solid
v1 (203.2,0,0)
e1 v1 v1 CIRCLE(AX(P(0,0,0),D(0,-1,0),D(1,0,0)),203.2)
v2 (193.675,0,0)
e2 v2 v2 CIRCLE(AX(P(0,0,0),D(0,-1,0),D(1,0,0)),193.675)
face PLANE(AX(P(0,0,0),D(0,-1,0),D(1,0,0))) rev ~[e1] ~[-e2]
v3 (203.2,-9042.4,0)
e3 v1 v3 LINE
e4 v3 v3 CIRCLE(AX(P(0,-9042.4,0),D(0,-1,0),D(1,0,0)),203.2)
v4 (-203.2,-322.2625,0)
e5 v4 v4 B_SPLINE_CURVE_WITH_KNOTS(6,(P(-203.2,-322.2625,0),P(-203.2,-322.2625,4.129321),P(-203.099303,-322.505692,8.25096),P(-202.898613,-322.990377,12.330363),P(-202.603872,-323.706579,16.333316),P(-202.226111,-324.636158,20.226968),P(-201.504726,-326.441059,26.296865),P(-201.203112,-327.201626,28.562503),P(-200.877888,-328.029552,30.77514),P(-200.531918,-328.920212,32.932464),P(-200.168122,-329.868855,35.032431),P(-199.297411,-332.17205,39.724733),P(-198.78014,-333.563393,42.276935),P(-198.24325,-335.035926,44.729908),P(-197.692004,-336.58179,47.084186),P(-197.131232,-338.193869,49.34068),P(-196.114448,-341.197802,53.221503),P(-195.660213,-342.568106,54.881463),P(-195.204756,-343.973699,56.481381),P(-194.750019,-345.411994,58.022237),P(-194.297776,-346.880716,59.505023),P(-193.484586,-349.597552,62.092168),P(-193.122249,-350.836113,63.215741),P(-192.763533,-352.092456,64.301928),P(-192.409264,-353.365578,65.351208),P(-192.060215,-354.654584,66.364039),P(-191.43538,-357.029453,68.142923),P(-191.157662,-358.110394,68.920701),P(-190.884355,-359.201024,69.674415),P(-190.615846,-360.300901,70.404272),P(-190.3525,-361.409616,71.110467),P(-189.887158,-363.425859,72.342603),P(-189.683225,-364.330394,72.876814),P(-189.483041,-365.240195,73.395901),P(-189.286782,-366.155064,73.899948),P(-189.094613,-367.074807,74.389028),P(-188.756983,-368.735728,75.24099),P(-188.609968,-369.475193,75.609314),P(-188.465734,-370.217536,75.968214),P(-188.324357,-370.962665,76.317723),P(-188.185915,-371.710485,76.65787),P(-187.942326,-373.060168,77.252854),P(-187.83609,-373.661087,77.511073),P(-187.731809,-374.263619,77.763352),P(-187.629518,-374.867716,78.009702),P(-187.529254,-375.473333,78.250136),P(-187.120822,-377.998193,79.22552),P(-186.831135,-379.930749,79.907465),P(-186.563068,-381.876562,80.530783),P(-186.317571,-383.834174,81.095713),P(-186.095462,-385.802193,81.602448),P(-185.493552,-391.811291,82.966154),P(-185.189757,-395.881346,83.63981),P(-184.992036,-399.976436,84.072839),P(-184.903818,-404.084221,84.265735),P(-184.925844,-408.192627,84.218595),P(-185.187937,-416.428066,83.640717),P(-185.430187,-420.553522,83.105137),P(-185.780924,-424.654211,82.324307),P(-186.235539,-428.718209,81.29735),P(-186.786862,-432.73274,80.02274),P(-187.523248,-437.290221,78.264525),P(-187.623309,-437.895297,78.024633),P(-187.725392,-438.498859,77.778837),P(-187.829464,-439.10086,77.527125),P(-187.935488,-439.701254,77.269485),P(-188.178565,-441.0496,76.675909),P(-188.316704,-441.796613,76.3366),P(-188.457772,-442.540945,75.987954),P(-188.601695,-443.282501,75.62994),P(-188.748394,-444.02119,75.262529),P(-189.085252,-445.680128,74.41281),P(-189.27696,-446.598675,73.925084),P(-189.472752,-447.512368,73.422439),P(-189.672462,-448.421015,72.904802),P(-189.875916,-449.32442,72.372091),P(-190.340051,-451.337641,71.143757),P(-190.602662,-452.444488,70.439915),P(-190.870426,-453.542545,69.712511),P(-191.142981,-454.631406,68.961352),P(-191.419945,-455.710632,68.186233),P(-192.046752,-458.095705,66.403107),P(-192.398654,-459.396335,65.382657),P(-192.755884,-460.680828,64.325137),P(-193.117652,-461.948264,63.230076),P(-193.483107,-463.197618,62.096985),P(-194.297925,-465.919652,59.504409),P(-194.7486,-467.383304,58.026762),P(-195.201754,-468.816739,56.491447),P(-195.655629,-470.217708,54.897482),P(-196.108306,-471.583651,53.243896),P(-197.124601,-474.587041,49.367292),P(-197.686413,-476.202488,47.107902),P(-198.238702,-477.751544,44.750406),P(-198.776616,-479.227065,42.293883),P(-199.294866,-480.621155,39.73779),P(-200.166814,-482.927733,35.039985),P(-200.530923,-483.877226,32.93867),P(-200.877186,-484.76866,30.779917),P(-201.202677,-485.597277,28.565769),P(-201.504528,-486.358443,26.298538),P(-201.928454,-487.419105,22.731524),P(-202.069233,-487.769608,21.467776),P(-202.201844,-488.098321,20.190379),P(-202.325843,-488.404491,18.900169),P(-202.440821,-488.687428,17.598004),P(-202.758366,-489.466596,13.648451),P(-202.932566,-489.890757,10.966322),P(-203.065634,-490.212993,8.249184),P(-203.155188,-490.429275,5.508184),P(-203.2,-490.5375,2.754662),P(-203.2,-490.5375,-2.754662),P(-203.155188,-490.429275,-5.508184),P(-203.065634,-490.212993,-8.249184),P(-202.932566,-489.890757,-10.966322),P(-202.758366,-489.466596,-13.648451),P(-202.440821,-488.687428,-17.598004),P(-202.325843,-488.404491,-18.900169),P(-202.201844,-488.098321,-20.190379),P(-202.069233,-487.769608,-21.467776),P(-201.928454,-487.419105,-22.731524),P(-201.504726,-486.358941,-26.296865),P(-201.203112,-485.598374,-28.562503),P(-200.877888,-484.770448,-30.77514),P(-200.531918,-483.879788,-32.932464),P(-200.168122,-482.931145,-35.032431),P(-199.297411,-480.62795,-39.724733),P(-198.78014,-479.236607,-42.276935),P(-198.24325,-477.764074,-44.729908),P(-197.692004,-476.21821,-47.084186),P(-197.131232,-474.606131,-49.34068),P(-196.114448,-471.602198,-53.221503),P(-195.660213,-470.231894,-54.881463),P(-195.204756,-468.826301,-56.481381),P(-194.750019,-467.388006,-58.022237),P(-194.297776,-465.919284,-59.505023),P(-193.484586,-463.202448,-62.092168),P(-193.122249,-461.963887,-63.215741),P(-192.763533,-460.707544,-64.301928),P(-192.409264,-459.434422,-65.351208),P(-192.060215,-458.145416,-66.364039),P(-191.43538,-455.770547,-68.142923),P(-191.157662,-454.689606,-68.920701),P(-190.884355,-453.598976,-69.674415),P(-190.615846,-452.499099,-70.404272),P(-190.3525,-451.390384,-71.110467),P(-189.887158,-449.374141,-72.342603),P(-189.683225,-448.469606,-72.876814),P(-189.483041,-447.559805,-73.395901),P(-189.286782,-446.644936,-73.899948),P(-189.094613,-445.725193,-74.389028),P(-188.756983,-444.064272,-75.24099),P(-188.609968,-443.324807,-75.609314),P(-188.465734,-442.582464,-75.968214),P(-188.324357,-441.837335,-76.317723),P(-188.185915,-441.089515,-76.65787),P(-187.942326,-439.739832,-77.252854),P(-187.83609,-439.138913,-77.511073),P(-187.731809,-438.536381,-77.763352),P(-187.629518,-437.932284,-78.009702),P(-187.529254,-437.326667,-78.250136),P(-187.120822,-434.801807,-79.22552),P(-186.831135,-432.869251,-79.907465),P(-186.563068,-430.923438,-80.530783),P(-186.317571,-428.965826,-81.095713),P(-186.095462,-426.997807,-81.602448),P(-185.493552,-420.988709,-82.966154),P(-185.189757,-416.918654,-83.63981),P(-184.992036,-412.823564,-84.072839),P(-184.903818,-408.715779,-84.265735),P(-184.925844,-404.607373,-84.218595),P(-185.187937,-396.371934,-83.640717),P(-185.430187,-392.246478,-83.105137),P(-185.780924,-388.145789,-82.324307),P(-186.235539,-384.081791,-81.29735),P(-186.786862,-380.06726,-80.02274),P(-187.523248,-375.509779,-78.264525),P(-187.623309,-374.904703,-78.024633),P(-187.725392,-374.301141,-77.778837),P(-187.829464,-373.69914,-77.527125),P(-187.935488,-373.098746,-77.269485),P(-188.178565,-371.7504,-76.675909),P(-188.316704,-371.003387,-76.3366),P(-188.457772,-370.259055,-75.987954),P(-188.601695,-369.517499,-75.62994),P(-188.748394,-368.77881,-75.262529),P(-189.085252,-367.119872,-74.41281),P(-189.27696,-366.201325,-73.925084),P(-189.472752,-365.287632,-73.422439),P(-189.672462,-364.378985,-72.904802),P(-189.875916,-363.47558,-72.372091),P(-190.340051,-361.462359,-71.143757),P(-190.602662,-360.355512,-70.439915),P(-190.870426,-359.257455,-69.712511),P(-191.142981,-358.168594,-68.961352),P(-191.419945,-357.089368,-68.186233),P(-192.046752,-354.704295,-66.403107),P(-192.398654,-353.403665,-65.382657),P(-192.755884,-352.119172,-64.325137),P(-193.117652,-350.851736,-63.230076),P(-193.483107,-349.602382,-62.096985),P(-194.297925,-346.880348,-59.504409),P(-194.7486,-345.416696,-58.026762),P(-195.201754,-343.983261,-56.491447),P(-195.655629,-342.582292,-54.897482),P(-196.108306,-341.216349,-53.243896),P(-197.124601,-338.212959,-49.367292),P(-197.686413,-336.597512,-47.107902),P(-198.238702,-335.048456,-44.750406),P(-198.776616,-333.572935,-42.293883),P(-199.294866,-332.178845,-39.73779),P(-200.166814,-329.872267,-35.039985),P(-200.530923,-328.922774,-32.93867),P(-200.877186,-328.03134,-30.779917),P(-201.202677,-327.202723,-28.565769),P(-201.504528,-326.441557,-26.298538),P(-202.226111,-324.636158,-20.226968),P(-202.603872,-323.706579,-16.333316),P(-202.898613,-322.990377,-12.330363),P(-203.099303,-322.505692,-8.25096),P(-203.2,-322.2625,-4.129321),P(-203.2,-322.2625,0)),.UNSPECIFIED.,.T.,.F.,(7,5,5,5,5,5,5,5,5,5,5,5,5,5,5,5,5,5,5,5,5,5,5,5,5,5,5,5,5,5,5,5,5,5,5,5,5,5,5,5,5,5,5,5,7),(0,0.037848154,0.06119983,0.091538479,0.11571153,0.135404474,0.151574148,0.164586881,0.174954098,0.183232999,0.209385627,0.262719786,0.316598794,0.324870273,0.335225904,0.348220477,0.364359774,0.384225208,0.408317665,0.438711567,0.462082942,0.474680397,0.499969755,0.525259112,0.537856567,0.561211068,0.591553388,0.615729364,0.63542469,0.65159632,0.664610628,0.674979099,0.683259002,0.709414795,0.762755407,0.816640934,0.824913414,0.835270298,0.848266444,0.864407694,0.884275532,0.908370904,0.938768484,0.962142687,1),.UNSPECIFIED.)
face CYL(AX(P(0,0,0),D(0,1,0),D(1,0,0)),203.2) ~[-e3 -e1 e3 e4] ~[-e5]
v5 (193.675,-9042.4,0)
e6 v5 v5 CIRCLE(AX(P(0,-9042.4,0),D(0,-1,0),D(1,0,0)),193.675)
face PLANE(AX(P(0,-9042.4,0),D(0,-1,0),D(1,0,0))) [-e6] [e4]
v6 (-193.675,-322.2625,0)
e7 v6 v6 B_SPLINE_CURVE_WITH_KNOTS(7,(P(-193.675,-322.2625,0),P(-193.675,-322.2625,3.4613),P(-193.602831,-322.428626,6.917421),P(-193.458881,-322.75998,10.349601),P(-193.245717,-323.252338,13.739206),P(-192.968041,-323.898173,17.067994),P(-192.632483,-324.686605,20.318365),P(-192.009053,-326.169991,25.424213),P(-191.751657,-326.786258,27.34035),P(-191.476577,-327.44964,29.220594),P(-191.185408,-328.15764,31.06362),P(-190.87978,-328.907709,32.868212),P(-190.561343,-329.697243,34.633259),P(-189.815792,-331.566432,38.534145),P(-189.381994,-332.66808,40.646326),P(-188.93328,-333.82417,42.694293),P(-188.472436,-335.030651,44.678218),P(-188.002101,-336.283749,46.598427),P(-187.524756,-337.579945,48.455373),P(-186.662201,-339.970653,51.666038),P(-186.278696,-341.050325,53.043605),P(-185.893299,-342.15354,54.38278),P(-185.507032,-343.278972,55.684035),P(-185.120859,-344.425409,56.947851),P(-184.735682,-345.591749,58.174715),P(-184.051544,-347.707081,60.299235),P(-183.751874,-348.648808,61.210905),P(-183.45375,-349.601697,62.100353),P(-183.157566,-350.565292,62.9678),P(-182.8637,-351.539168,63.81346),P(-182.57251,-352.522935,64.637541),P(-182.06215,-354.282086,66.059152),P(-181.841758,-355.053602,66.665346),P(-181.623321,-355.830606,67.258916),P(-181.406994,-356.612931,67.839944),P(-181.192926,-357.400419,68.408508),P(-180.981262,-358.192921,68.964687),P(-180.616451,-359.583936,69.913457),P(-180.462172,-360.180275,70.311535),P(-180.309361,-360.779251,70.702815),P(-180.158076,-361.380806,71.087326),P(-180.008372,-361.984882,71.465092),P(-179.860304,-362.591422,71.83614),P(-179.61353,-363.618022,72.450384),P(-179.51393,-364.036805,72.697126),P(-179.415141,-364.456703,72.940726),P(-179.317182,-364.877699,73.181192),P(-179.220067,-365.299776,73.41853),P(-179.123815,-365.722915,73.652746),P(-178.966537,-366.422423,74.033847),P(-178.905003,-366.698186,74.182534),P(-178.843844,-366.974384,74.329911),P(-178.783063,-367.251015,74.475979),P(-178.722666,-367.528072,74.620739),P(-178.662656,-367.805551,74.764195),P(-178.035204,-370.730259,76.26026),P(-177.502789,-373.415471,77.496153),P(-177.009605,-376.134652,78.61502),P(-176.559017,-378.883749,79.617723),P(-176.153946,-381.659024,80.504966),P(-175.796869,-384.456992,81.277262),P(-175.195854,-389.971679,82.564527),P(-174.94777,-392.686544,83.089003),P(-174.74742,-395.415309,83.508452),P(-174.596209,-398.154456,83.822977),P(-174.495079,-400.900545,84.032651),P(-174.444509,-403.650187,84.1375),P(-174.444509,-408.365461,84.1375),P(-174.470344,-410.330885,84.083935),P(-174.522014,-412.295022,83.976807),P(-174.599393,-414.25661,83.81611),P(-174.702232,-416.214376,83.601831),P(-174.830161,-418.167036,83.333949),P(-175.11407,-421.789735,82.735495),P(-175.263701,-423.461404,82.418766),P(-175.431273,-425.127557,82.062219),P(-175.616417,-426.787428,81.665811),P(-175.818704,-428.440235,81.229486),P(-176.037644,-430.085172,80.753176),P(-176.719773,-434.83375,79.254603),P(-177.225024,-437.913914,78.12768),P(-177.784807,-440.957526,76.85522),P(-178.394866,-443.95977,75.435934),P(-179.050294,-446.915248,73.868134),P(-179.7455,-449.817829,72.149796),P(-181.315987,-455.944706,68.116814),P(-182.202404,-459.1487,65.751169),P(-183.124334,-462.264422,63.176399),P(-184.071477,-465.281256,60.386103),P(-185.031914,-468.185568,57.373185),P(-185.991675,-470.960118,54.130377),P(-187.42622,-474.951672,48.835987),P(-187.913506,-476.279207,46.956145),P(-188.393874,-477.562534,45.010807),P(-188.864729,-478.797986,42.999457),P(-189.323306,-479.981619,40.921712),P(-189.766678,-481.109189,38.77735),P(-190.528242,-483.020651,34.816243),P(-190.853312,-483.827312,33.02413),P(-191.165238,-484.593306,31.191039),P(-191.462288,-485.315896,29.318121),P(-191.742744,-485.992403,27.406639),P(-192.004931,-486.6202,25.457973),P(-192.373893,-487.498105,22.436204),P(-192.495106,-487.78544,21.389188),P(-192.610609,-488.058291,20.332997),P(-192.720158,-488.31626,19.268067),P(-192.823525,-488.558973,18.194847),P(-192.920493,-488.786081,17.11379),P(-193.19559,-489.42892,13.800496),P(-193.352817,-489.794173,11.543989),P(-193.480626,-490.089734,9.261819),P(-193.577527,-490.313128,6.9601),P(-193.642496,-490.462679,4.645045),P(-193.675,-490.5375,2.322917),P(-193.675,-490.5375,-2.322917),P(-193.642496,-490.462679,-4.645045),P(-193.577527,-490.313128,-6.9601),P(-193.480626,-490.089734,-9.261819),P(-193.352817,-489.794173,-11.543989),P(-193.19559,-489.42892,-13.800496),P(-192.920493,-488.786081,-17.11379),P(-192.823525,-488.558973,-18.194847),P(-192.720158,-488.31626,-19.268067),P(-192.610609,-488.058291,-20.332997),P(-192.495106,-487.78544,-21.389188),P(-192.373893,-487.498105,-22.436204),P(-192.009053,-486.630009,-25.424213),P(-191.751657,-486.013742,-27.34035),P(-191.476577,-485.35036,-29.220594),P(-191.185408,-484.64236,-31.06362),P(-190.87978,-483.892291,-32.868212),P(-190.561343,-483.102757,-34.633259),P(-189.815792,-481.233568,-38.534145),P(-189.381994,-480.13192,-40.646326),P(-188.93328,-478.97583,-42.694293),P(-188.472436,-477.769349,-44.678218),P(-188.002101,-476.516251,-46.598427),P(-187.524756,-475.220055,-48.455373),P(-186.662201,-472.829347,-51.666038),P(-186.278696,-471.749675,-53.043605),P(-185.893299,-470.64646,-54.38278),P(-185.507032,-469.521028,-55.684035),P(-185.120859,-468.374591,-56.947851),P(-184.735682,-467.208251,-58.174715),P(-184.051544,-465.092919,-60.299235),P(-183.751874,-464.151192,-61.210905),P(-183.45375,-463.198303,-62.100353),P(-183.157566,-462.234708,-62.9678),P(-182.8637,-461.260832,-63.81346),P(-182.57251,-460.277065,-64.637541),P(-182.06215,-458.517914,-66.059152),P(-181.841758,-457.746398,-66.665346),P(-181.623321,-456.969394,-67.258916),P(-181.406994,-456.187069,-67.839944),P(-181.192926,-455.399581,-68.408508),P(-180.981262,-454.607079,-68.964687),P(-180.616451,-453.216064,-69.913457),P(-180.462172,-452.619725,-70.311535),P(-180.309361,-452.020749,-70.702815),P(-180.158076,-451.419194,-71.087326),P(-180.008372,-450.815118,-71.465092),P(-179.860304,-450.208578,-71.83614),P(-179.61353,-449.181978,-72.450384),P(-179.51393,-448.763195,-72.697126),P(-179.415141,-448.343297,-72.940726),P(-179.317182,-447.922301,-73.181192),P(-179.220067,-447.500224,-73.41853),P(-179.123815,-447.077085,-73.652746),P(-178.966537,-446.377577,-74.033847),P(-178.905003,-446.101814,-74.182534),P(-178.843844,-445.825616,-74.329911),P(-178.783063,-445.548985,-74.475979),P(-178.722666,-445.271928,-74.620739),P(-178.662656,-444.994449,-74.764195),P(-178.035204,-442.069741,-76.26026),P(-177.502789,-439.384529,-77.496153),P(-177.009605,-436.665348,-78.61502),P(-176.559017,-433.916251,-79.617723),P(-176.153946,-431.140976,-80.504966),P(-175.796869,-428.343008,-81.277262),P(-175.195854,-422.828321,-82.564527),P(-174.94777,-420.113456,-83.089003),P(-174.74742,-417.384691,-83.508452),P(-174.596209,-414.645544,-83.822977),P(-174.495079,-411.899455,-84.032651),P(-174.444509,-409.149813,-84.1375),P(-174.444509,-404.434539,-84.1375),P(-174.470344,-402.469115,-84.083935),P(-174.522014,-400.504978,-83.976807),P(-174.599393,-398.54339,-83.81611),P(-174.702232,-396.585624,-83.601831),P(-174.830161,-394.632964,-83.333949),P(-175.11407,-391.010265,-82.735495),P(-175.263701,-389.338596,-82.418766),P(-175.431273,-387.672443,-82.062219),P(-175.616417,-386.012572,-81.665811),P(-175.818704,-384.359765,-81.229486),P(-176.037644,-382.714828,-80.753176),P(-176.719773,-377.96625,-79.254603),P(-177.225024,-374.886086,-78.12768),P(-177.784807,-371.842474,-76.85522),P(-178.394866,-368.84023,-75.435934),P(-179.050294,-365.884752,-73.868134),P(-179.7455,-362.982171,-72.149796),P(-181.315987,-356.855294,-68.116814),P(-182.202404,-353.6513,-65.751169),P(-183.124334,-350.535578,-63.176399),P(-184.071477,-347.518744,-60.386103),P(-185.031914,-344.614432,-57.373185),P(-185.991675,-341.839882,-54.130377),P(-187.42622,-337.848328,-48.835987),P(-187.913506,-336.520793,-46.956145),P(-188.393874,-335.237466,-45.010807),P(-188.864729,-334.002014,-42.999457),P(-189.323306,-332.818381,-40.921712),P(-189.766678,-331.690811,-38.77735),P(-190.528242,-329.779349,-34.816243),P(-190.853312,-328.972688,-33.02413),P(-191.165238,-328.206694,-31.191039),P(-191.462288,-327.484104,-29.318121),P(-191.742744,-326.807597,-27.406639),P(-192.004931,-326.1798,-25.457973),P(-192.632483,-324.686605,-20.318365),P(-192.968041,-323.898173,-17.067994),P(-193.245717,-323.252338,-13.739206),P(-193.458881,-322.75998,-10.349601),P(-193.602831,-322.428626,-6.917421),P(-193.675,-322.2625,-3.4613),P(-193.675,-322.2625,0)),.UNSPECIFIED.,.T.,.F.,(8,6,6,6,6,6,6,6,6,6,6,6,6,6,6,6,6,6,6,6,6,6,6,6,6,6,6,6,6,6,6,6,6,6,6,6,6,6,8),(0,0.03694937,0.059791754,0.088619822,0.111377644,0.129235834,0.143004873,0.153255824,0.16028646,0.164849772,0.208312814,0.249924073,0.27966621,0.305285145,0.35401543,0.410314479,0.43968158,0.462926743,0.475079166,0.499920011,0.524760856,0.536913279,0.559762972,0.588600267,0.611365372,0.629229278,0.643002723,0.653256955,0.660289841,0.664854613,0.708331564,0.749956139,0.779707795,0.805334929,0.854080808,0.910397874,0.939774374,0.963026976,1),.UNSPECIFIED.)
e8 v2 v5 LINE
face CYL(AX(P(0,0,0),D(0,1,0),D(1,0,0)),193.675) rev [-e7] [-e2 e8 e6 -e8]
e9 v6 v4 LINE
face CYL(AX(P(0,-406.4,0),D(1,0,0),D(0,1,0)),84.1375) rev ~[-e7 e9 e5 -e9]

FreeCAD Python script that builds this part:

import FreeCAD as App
import Part
import Sketcher
Q = App.Units.Quantity

doc = App.newDocument("Part")
params = doc.addObject("Spreadsheet::Sheet", "Params")
for row, (alias, value) in enumerate([
    ("sketch1_diameter", "16 in"),
    ("sketch1_diameter2", "15.25 in"),
    ("pad1_length", "356 in"),
    ("sketch2_diameter", "6.625 in"),
    ("pocket1_length", "10 in"),
], start=1):
    params.set(f"A{row}", alias)
    params.set(f"B{row}", "=" + value)
    params.setAlias(f"B{row}", alias)

body = doc.addObject("PartDesign::Body", "Body")

sketch1 = body.newObject("Sketcher::SketchObject", "Sketch")
sketch1.AttachmentSupport = (doc.getObject("XZ_Plane"), [""])
sketch1.MapMode = "FlatFace"
sketch1.addGeometry([
    Part.Circle(App.Vector(0, 0, 0), App.Vector(0, 0, 1), 203),
    Part.Circle(App.Vector(0, 0, 0), App.Vector(0, 0, 1), 194),
], False)
sketch1.addConstraint([
    Sketcher.Constraint("Coincident", 0, 3, -1, 1),
    Sketcher.Constraint("Coincident", 1, 3, -1, 1),
    Sketcher.Constraint("Diameter", 0, Q("16 in")),
    Sketcher.Constraint("Diameter", 1, Q("15.25 in")),
])
sketch1.setExpression("Constraints[2]", "Params.sketch1_diameter")
sketch1.setExpression("Constraints[3]", "Params.sketch1_diameter2")
pad1 = body.newObject("PartDesign::Pad", "Pad")
pad1.Profile = sketch1
pad1.setExpression("Length", "Params.pad1_length")

sketch2 = body.newObject("Sketcher::SketchObject", "Sketch001")
sketch2.AttachmentSupport = (doc.getObject("YZ_Plane"), [""])
sketch2.MapMode = "FlatFace"
sketch2.addGeometry(Part.Circle(App.Vector(-406, 0, 0), App.Vector(0, 0, 1), 84), False)
sketch2.addConstraint([
    Sketcher.Constraint("PointOnObject", 0, 3, -1),
    Sketcher.Constraint("Diameter", 0, Q("6.625 in")),
    Sketcher.Constraint("DistanceX", 0, 3, -1, 1, Q("16 in")),
])
sketch2.setExpression("Constraints[1]", "Params.sketch2_diameter")
pocket1 = body.newObject("PartDesign::Pocket", "Pocket")
pocket1.Profile = sketch2
pocket1.setExpression("Length", "Params.pocket1_length")

doc.recompute()
